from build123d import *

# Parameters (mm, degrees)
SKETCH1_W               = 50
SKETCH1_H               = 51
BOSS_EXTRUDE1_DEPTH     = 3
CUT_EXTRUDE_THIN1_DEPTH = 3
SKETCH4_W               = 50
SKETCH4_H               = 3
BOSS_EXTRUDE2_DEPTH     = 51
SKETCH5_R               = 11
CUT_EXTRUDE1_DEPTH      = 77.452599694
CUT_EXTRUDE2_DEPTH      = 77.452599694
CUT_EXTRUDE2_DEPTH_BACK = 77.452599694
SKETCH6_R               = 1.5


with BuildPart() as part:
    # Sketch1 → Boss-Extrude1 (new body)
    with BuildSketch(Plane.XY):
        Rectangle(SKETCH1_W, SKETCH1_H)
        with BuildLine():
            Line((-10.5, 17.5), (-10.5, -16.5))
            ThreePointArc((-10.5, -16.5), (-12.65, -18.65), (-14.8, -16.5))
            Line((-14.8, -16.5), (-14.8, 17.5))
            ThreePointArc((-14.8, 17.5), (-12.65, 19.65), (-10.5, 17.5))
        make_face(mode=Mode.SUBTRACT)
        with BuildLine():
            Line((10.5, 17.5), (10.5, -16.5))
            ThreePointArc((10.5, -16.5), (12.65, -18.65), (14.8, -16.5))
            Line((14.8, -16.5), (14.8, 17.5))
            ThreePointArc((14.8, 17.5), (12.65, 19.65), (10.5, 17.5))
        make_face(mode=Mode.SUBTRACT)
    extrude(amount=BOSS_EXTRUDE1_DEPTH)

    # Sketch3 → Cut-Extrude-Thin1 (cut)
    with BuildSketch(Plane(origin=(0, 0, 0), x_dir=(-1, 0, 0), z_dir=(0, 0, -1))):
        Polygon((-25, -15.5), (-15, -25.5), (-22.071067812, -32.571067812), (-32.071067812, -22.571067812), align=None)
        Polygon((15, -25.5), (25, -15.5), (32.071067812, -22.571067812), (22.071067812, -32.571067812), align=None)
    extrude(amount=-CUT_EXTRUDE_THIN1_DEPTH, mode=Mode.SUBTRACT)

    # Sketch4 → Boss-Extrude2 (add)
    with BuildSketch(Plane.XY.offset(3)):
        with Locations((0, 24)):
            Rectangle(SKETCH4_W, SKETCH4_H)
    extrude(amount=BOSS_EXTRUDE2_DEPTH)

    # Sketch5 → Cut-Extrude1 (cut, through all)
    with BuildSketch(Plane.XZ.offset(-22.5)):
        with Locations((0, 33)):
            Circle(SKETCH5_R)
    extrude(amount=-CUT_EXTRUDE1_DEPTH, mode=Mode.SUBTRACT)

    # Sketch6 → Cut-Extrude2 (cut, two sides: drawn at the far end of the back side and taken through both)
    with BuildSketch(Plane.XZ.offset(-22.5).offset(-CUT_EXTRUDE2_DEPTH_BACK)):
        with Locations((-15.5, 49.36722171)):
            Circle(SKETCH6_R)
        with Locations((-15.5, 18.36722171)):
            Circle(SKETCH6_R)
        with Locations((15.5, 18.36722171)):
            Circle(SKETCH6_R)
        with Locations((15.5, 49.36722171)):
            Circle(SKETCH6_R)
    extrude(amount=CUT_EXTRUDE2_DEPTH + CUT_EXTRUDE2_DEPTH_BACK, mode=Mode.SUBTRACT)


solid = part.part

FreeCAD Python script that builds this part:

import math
import FreeCAD as App
import Part
import Sketcher
Q = App.Units.Quantity

doc = App.newDocument("Part")
params = doc.addObject("Spreadsheet::Sheet", "Params")
for row, (alias, value) in enumerate([
    ("sketch1_width", "50 mm"),
    ("sketch1_height", "51 mm"),
    ("sketch1_height2", "34 mm"),
    ("sketch1_radius", "2.15 mm"),
    ("pad1_length", "3 mm"),
    ("sketch2_length", "10 mm"),
    ("pocket1_length", "3 mm"),
    ("sketch3_width", "50 mm"),
    ("sketch3_height", "3 mm"),
    ("pad2_length", "51 mm"),
    ("sketch4_diameter", "22 mm"),
    ("sketch5_diameter", "3 mm"),
], start=1):
    params.set(f"A{row}", alias)
    params.set(f"B{row}", "=" + value)
    params.setAlias(f"B{row}", alias)

body = doc.addObject("PartDesign::Body", "Body")

# Sketch on XY plane
sketch1 = body.newObject("Sketcher::SketchObject", "Sketch")
sketch1.AttachmentSupport = (doc.getObject("XY_Plane"), [""])
sketch1.MapMode = "FlatFace"
sketch1.addGeometry(Part.LineSegment(App.Vector(-25, 25.5, 0), App.Vector(-25, -25.5, 0)), False)
sketch1.addGeometry(Part.LineSegment(App.Vector(-25, -25.5, 0), App.Vector(25, -25.5, 0)), False)
sketch1.addGeometry(Part.LineSegment(App.Vector(25, -25.5, 0), App.Vector(25, 25.5, 0)), False)
sketch1.addGeometry(Part.LineSegment(App.Vector(25, 25.5, 0), App.Vector(-25, 25.5, 0)), False)
sketch1.addGeometry(Part.ArcOfCircle(Part.Circle(App.Vector(-12.65, 17.5, 0), App.Vector(0, 0, 1), 2.15), math.radians(0), math.radians(180)), False)
sketch1.addGeometry(Part.LineSegment(App.Vector(-10.5, 17.5, 0), App.Vector(-10.5, -16.5, 0)), False)
sketch1.addGeometry(Part.ArcOfCircle(Part.Circle(App.Vector(-12.65, -16.5, 0), App.Vector(0, 0, 1), 2.15), math.radians(180), math.radians(360)), False)
sketch1.addGeometry(Part.LineSegment(App.Vector(-14.8, -16.5, 0), App.Vector(-14.8, 17.5, 0)), False)
sketch1.addGeometry(Part.LineSegment(App.Vector(10.5, -16.5, 0), App.Vector(10.5, 17.5, 0)), False)
sketch1.addGeometry(Part.ArcOfCircle(Part.Circle(App.Vector(12.65, 17.5, 0), App.Vector(0, 0, 1), 2.15), math.radians(0), math.radians(180)), False)
sketch1.addGeometry(Part.LineSegment(App.Vector(14.8, 17.5, 0), App.Vector(14.8, -16.5, 0)), False)
sketch1.addGeometry(Part.ArcOfCircle(Part.Circle(App.Vector(12.65, -16.5, 0), App.Vector(0, 0, 1), 2.15), math.radians(180), math.radians(360)), False)
sketch1.addConstraint(Sketcher.Constraint("Coincident", 0, 2, 1, 1))
sketch1.addConstraint(Sketcher.Constraint("Coincident", 1, 2, 2, 1))
sketch1.addConstraint(Sketcher.Constraint("Coincident", 2, 2, 3, 1))
sketch1.addConstraint(Sketcher.Constraint("Coincident", 3, 2, 0, 1))
sketch1.addConstraint(Sketcher.Constraint("Tangent", 4, 1, 5, 1))
sketch1.addConstraint(Sketcher.Constraint("Tangent", 5, 2, 6, 2))
sketch1.addConstraint(Sketcher.Constraint("Tangent", 6, 1, 7, 1))
sketch1.addConstraint(Sketcher.Constraint("Tangent", 7, 2, 4, 2))
sketch1.addConstraint(Sketcher.Constraint("Tangent", 8, 2, 9, 2))
sketch1.addConstraint(Sketcher.Constraint("Tangent", 9, 1, 10, 1))
sketch1.addConstraint(Sketcher.Constraint("Tangent", 10, 2, 11, 2))
sketch1.addConstraint(Sketcher.Constraint("Tangent", 11, 1, 8, 1))
sketch1.addConstraint(Sketcher.Constraint("Vertical", 0))
sketch1.addConstraint(Sketcher.Constraint("Horizontal", 1))
sketch1.addConstraint(Sketcher.Constraint("Vertical", 2))
sketch1.addConstraint(Sketcher.Constraint("Horizontal", 3))
sketch1.addConstraint(Sketcher.Constraint("Vertical", 5))
sketch1.addConstraint(Sketcher.Constraint("Vertical", 7))
sketch1.addConstraint(Sketcher.Constraint("Vertical", 8))
sketch1.addConstraint(Sketcher.Constraint("Vertical", 10))
sketch1.addConstraint(Sketcher.Constraint("Equal", 6, 9))
sketch1.addConstraint(Sketcher.Constraint("Symmetric", 0, 2, 2, 2, -1, 1))
sketch1.addConstraint(Sketcher.Constraint("Symmetric", 4, 3, 9, 3, -2))
sketch1.addConstraint(Sketcher.Constraint("Horizontal", 6, 3, 11, 3))
sketch1.addConstraint(Sketcher.Constraint("DistanceX", 1, 1, 1, 2, Q("50 mm")))
sketch1.addConstraint(Sketcher.Constraint("DistanceY", 0, 2, 0, 1, Q("51 mm")))
sketch1.addConstraint(Sketcher.Constraint("DistanceY", 5, 2, 5, 1, Q("34 mm")))
sketch1.addConstraint(Sketcher.Constraint("Radius", 4, Q("2.15 mm")))
sketch1.addConstraint(Sketcher.Constraint("DistanceY", 0, 2, 6, 3, Q("9 mm")))
sketch1.addConstraint(Sketcher.Constraint("DistanceX", 4, 1, 8, 2, Q("21 mm")))
sketch1.setExpression("Constraints[24]", "Params.sketch1_width")
sketch1.setExpression("Constraints[25]", "Params.sketch1_height")
sketch1.setExpression("Constraints[26]", "Params.sketch1_height2")
sketch1.setExpression("Constraints[27]", "Params.sketch1_radius")
pad1 = body.newObject("PartDesign::Pad", "Pad")
pad1.Profile = sketch1
pad1.setExpression("Length", "Params.pad1_length")

# Sketch on XY plane
sketch2 = body.newObject("Sketcher::SketchObject", "Sketch001")
sketch2.AttachmentSupport = (doc.getObject("XY_Plane"), [""])
sketch2.MapMode = "FlatFace"
sketch2.addGeometry(Part.LineSegment(App.Vector(15, -25.5, 0), App.Vector(25, -15.5, 0)), False)
sketch2.addGeometry(Part.LineSegment(App.Vector(25, -15.5, 0), App.Vector(32.071068, -22.571068, 0)), False)
sketch2.addGeometry(Part.LineSegment(App.Vector(32.071068, -22.571068, 0), App.Vector(22.071068, -32.571068, 0)), False)
sketch2.addGeometry(Part.LineSegment(App.Vector(22.071068, -32.571068, 0), App.Vector(15, -25.5, 0)), False)
sketch2.addGeometry(Part.LineSegment(App.Vector(-25, -15.5, 0), App.Vector(-15, -25.5, 0)), False)
sketch2.addGeometry(Part.LineSegment(App.Vector(-15, -25.5, 0), App.Vector(-22.071068, -32.571068, 0)), False)
sketch2.addGeometry(Part.LineSegment(App.Vector(-22.071068, -32.571068, 0), App.Vector(-32.071068, -22.571068, 0)), False)
sketch2.addGeometry(Part.LineSegment(App.Vector(-32.071068, -22.571068, 0), App.Vector(-25, -15.5, 0)), False)
sketch2.addConstraint(Sketcher.Constraint("Coincident", 0, 2, 1, 1))
sketch2.addConstraint(Sketcher.Constraint("Coincident", 1, 2, 2, 1))
sketch2.addConstraint(Sketcher.Constraint("Coincident", 2, 2, 3, 1))
sketch2.addConstraint(Sketcher.Constraint("Coincident", 3, 2, 0, 1))
sketch2.addConstraint(Sketcher.Constraint("Coincident", 4, 2, 5, 1))
sketch2.addConstraint(Sketcher.Constraint("Coincident", 5, 2, 6, 1))
sketch2.addConstraint(Sketcher.Constraint("Coincident", 6, 2, 7, 1))
sketch2.addConstraint(Sketcher.Constraint("Coincident", 7, 2, 4, 1))
sketch2.addConstraint(Sketcher.Constraint("Symmetric", 3, 2, 4, 2, -2))
sketch2.addConstraint(Sketcher.Constraint("Symmetric", 2, 2, 5, 2, -2))
sketch2.addConstraint(Sketcher.Constraint("Symmetric", 1, 2, 6, 2, -2))
sketch2.addConstraint(Sketcher.Constraint("Symmetric", 0, 2, 7, 2, -2))
sketch2.addConstraint(Sketcher.Constraint("Perpendicular", 0, 1))
sketch2.addConstraint(Sketcher.Constraint("Perpendicular", 1, 2))
sketch2.addConstraint(Sketcher.Constraint("Perpendicular", 2, 3))
sketch2.addConstraint(Sketcher.Constraint("Parallel", 3, 4))
sketch2.addConstraint(Sketcher.Constraint("Distance", 1, Q("10 mm")))
sketch2.addConstraint(Sketcher.Constraint("DistanceX", -1, 1, 0, 2, Q("25 mm")))
sketch2.addConstraint(Sketcher.Constraint("DistanceX", -1, 1, 3, 2, Q("15 mm")))
sketch2.addConstraint(Sketcher.Constraint("DistanceY", 0, 2, -1, 1, Q("15.5 mm")))
sketch2.setExpression("Constraints[16]", "Params.sketch2_length")
pocket1 = body.newObject("PartDesign::Pocket", "Pocket")
pocket1.Profile = sketch2
pocket1.setExpression("Length", "Params.pocket1_length")
pocket1.Reversed = True

# Sketch on XY plane
sketch3 = body.newObject("Sketcher::SketchObject", "Sketch002")
sketch3.AttachmentSupport = (doc.getObject("XY_Plane"), [""])
sketch3.MapMode = "FlatFace"
sketch3.AttachmentOffset = App.Placement(App.Vector(0, 0, 3), App.Rotation())
sketch3.addGeometry(Part.LineSegment(App.Vector(-25, 25.5, 0), App.Vector(-25, 22.5, 0)), False)
sketch3.addGeometry(Part.LineSegment(App.Vector(-25, 22.5, 0), App.Vector(25, 22.5, 0)), False)
sketch3.addGeometry(Part.LineSegment(App.Vector(25, 22.5, 0), App.Vector(25, 25.5, 0)), False)
sketch3.addGeometry(Part.LineSegment(App.Vector(25, 25.5, 0), App.Vector(-25, 25.5, 0)), False)
sketch3.addConstraint(Sketcher.Constraint("Coincident", 0, 2, 1, 1))
sketch3.addConstraint(Sketcher.Constraint("Coincident", 1, 2, 2, 1))
sketch3.addConstraint(Sketcher.Constraint("Coincident", 2, 2, 3, 1))
sketch3.addConstraint(Sketcher.Constraint("Coincident", 3, 2, 0, 1))
sketch3.addConstraint(Sketcher.Constraint("Vertical", 0))
sketch3.addConstraint(Sketcher.Constraint("Horizontal", 1))
sketch3.addConstraint(Sketcher.Constraint("Vertical", 2))
sketch3.addConstraint(Sketcher.Constraint("Horizontal", 3))
sketch3.addConstraint(Sketcher.Constraint("DistanceX", 1, 1, 1, 2, Q("50 mm")))
sketch3.addConstraint(Sketcher.Constraint("DistanceY", 0, 2, 0, 1, Q("3 mm")))
sketch3.addConstraint(Sketcher.Constraint("DistanceX", 0, 2, -1, 1, Q("25 mm")))
sketch3.addConstraint(Sketcher.Constraint("DistanceY", -1, 1, 0, 2, Q("22.5 mm")))
sketch3.setExpression("Constraints[8]", "Params.sketch3_width")
sketch3.setExpression("Constraints[9]", "Params.sketch3_height")
pad2 = body.newObject("PartDesign::Pad", "Pad001")
pad2.Profile = sketch3
pad2.setExpression("Length", "Params.pad2_length")

# Sketch on XZ plane
sketch4 = body.newObject("Sketcher::SketchObject", "Sketch003")
sketch4.AttachmentSupport = (doc.getObject("XZ_Plane"), [""])
sketch4.MapMode = "FlatFace"
sketch4.AttachmentOffset = App.Placement(App.Vector(0, 0, -22.5), App.Rotation())
sketch4.addGeometry(Part.Circle(App.Vector(0, 33, 0), App.Vector(0, 0, 1), 11), False)
sketch4.addConstraint(Sketcher.Constraint("PointOnObject", 0, 3, -2))
sketch4.addConstraint(Sketcher.Constraint("Diameter", 0, Q("22 mm")))
sketch4.addConstraint(Sketcher.Constraint("DistanceY", -1, 1, 0, 3, Q("33 mm")))
sketch4.setExpression("Constraints[1]", "Params.sketch4_diameter")
pocket2 = body.newObject("PartDesign::Pocket", "Pocket001")
pocket2.Profile = sketch4
pocket2.Type = "ThroughAll"

# Sketch on XZ plane
sketch5 = body.newObject("Sketcher::SketchObject", "Sketch004")
sketch5.AttachmentSupport = (doc.getObject("XZ_Plane"), [""])
sketch5.MapMode = "FlatFace"
sketch5.AttachmentOffset = App.Placement(App.Vector(0, 0, -22.5), App.Rotation())
sketch5.addGeometry(Part.Circle(App.Vector(-15.5, 49.367222, 0), App.Vector(0, 0, 1), 1.5), False)
sketch5.addGeometry(Part.Circle(App.Vector(-15.5, 18.367222, 0), App.Vector(0, 0, 1), 1.5), False)
sketch5.addGeometry(Part.Circle(App.Vector(15.5, 18.367222, 0), App.Vector(0, 0, 1), 1.5), False)
sketch5.addGeometry(Part.Circle(App.Vector(15.5, 49.367222, 0), App.Vector(0, 0, 1), 1.5), False)
sketch5.addConstraint(Sketcher.Constraint("Equal", 0, 1))
sketch5.addConstraint(Sketcher.Constraint("Equal", 1, 2))
sketch5.addConstraint(Sketcher.Constraint("Equal", 2, 3))
sketch5.addConstraint(Sketcher.Constraint("Symmetric", 1, 3, 2, 3, -2))
sketch5.addConstraint(Sketcher.Constraint("Symmetric", 0, 3, 3, 3, -2))
sketch5.addConstraint(Sketcher.Constraint("Vertical", 0, 3, 1, 3))
sketch5.addConstraint(Sketcher.Constraint("Diameter", 0, Q("3 mm")))
sketch5.addConstraint(Sketcher.Constraint("DistanceY", 1, 3, 0, 3, Q("31 mm")))
sketch5.addConstraint(Sketcher.Constraint("DistanceX", 1, 3, 2, 3, Q("31 mm")))
sketch5.addConstraint(Sketcher.Constraint("DistanceY", -1, 1, 0, 3, Q("49.367222 mm")))
sketch5.setExpression("Constraints[6]", "Params.sketch5_diameter")
pocket3 = body.newObject("PartDesign::Pocket", "Pocket002")
pocket3.Profile = sketch5
pocket3.Type = "ThroughAll"
pocket3.Midplane = True

doc.recompute()
